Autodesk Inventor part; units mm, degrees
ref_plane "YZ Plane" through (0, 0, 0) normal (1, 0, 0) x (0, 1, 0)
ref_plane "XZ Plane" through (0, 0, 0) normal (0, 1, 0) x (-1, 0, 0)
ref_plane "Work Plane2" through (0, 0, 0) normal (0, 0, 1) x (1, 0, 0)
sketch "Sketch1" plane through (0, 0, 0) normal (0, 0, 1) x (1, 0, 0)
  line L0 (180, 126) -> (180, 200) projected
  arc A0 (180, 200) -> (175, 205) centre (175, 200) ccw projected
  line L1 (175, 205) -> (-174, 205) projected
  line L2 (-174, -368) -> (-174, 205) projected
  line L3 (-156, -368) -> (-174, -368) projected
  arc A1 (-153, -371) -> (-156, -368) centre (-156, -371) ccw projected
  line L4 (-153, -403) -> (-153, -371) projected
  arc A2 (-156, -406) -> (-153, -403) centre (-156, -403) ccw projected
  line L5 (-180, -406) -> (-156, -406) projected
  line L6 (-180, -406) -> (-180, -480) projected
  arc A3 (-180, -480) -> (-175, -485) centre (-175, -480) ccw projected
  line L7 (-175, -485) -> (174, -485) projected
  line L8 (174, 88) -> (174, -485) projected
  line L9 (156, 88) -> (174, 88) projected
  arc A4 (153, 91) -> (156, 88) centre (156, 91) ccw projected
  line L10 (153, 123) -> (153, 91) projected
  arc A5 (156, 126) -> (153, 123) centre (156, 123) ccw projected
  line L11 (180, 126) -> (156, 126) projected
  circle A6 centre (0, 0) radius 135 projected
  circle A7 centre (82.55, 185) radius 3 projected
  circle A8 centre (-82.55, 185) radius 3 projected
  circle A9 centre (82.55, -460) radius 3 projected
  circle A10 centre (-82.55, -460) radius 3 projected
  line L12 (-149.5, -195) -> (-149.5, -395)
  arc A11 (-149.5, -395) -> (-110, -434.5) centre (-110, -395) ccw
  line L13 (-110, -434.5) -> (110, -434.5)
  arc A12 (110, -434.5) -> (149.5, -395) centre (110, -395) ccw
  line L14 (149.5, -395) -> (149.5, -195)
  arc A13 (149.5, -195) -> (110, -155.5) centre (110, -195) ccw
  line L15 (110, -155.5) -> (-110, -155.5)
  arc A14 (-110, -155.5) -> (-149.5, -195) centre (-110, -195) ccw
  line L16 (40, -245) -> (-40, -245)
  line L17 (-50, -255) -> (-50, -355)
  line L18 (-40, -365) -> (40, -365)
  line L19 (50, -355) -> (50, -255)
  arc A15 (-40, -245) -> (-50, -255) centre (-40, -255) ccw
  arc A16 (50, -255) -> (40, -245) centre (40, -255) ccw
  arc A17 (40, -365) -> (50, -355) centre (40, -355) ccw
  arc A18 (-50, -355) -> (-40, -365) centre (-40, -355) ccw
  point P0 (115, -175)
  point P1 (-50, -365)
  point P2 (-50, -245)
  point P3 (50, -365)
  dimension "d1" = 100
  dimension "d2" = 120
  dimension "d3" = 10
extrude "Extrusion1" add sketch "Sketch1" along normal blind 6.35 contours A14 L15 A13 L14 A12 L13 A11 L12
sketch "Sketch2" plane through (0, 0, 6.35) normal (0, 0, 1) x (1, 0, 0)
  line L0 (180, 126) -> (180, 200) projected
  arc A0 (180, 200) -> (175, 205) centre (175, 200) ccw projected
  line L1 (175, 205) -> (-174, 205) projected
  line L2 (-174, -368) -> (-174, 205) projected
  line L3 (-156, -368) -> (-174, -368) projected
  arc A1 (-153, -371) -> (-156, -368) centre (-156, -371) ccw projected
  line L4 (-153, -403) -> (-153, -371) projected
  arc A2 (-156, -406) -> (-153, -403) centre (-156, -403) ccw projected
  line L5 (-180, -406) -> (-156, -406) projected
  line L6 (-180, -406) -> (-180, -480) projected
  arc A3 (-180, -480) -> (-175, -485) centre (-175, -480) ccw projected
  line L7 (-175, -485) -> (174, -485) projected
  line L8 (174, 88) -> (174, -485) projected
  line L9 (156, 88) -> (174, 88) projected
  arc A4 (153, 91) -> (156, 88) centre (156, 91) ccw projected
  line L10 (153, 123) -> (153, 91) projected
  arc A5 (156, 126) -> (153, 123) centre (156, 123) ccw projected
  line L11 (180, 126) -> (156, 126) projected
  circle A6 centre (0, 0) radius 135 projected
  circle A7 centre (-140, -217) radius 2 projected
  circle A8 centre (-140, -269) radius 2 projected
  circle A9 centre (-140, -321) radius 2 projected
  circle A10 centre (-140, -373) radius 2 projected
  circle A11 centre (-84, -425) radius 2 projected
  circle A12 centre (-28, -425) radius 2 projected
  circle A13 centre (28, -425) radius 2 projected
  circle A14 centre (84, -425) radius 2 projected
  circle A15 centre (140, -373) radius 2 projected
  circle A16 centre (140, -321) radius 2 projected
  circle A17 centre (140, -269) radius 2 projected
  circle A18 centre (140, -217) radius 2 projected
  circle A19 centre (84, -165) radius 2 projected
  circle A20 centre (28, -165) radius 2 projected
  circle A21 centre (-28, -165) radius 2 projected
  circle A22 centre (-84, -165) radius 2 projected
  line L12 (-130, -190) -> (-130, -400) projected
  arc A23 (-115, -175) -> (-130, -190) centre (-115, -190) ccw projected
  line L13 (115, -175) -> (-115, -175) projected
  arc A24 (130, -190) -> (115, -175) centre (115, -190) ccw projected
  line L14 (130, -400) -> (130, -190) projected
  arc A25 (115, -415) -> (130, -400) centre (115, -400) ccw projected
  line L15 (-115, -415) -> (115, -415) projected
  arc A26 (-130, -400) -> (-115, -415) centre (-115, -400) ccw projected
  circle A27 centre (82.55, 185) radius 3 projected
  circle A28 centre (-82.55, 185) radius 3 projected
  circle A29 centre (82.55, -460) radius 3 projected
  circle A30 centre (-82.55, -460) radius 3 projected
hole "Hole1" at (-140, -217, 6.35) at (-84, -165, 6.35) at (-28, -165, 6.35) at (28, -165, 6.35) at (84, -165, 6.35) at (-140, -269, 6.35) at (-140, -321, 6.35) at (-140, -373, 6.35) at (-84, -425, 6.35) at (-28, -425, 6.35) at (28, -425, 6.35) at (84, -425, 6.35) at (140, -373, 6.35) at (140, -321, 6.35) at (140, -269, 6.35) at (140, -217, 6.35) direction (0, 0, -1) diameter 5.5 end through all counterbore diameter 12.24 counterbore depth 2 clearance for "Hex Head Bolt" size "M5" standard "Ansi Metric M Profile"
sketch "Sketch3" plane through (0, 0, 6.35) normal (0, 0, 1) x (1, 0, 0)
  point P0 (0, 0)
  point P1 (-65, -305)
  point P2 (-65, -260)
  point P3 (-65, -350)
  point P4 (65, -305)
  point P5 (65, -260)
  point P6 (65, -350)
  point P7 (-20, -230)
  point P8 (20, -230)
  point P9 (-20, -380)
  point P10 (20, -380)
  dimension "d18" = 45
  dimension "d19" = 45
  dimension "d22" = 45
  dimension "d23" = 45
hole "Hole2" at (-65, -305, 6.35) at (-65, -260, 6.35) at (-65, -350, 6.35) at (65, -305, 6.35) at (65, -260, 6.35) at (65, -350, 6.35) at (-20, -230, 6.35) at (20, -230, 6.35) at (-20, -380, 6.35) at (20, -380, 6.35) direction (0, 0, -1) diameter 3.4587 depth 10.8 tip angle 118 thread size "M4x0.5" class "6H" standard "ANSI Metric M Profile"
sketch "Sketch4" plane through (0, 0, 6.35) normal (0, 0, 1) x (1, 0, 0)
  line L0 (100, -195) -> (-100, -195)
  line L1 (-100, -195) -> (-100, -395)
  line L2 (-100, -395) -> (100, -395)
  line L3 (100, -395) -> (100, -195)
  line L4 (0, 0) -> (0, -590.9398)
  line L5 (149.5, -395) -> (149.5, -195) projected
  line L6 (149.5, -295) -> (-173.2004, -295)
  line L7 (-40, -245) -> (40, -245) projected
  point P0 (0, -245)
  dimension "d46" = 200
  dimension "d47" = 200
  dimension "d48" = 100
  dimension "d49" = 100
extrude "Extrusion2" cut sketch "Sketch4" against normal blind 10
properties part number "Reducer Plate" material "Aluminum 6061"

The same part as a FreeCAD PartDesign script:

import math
import FreeCAD as App
import Part
import Sketcher


def add_polygon(sketch, points):
    """Adds a closed chain of lines whose ends are joined by coincident constraints."""
    first, n = sketch.GeometryCount, len(points)
    for a, b in zip(points, points[1:] + points[:1]):
        sketch.addGeometry(Part.LineSegment(App.Vector(*a, 0), App.Vector(*b, 0)), False)
    for i in range(n):
        sketch.addConstraint(Sketcher.Constraint("Coincident", first + i, 2, first + (i + 1) % n, 1))

doc = App.newDocument("Part")
params = doc.addObject("Spreadsheet::Sheet", "Params")
for row, (alias, value) in enumerate([
    ("sketch1_radius", "10 mm"),
    ("sketch1_height", "100 mm"),
    ("sketch1_radius2", "39.5 mm"),
    ("sketch1_width", "220 mm"),
    ("sketch1_height2", "200 mm"),
    ("pad1_length", "6.35 mm"),
    ("sketch2_diameter", "5.5 mm"),
    ("hole_diameter", "5.5 mm"),
    ("hole_cbore_diameter", "12.24 mm"),
    ("hole_cbore_depth", "2 mm"),
    ("hole2_diameter", "3.4587 mm"),
    ("hole2_depth", "10.8 mm"),
    ("sketch4_width", "200 mm"),
    ("pocket1_length", "10 mm"),
], start=1):
    params.set(f"A{row}", alias)
    params.set(f"B{row}", "=" + value)
    params.setAlias(f"B{row}", alias)

body = doc.addObject("PartDesign::Body", "Body")

# Sketch on XY plane
sketch1 = doc.addObject("Sketcher::SketchObject", "Sketch")
body.addObject(sketch1)
sketch1.AttachmentSupport = (doc.XY_Plane, [""])
sketch1.MapMode = "FlatFace"
sketch1.addGeometry(Part.ArcOfCircle(Part.Circle(App.Vector(-110, -195, 0), App.Vector(0, 0, 1), 40), math.radians(90), math.radians(180)), False)
sketch1.addGeometry(Part.LineSegment(App.Vector(-150, -195, 0), App.Vector(-150, -395, 0)), False)
sketch1.addGeometry(Part.ArcOfCircle(Part.Circle(App.Vector(-110, -395, 0), App.Vector(0, 0, 1), 40), math.radians(180), math.radians(270)), False)
sketch1.addGeometry(Part.LineSegment(App.Vector(-110, -434, 0), App.Vector(110, -434, 0)), False)
sketch1.addGeometry(Part.ArcOfCircle(Part.Circle(App.Vector(110, -395, 0), App.Vector(0, 0, 1), 40), math.radians(-90), math.radians(0)), False)
sketch1.addGeometry(Part.LineSegment(App.Vector(150, -395, 0), App.Vector(150, -195, 0)), False)
sketch1.addGeometry(Part.ArcOfCircle(Part.Circle(App.Vector(110, -195, 0), App.Vector(0, 0, 1), 40), math.radians(0), math.radians(90)), False)
sketch1.addGeometry(Part.LineSegment(App.Vector(110, -156, 0), App.Vector(-110, -156, 0)), False)
sketch1.addGeometry(Part.LineSegment(App.Vector(-40, -245, 0), App.Vector(40, -245, 0)), False)
sketch1.addGeometry(Part.ArcOfCircle(Part.Circle(App.Vector(40, -255, 0), App.Vector(0, 0, 1), 10), math.radians(0), math.radians(90)), False)
sketch1.addGeometry(Part.LineSegment(App.Vector(50, -255, 0), App.Vector(50, -355, 0)), False)
sketch1.addGeometry(Part.ArcOfCircle(Part.Circle(App.Vector(40, -355, 0), App.Vector(0, 0, 1), 10), math.radians(-90), math.radians(0)), False)
sketch1.addGeometry(Part.LineSegment(App.Vector(40, -365, 0), App.Vector(-40, -365, 0)), False)
sketch1.addGeometry(Part.ArcOfCircle(Part.Circle(App.Vector(-40, -355, 0), App.Vector(0, 0, 1), 10), math.radians(180), math.radians(270)), False)
sketch1.addGeometry(Part.LineSegment(App.Vector(-50, -355, 0), App.Vector(-50, -255, 0)), False)
sketch1.addGeometry(Part.ArcOfCircle(Part.Circle(App.Vector(-40, -255, 0), App.Vector(0, 0, 1), 10), math.radians(90), math.radians(180)), False)
sketch1.addConstraint(Sketcher.Constraint("Tangent", 0, 2, 1, 1))
sketch1.addConstraint(Sketcher.Constraint("Tangent", 1, 2, 2, 1))
sketch1.addConstraint(Sketcher.Constraint("Tangent", 2, 2, 3, 1))
sketch1.addConstraint(Sketcher.Constraint("Tangent", 3, 2, 4, 1))
sketch1.addConstraint(Sketcher.Constraint("Tangent", 4, 2, 5, 1))
sketch1.addConstraint(Sketcher.Constraint("Tangent", 5, 2, 6, 1))
sketch1.addConstraint(Sketcher.Constraint("Tangent", 6, 2, 7, 1))
sketch1.addConstraint(Sketcher.Constraint("Tangent", 7, 2, 0, 1))
sketch1.addConstraint(Sketcher.Constraint("Tangent", 8, 2, 9, 2))
sketch1.addConstraint(Sketcher.Constraint("Tangent", 9, 1, 10, 1))
sketch1.addConstraint(Sketcher.Constraint("Tangent", 10, 2, 11, 2))
sketch1.addConstraint(Sketcher.Constraint("Tangent", 11, 1, 12, 1))
sketch1.addConstraint(Sketcher.Constraint("Tangent", 12, 2, 13, 2))
sketch1.addConstraint(Sketcher.Constraint("Tangent", 13, 1, 14, 1))
sketch1.addConstraint(Sketcher.Constraint("Tangent", 14, 2, 15, 2))
sketch1.addConstraint(Sketcher.Constraint("Tangent", 15, 1, 8, 1))
sketch1.addConstraint(Sketcher.Constraint("Vertical", 1))
sketch1.addConstraint(Sketcher.Constraint("Horizontal", 3))
sketch1.addConstraint(Sketcher.Constraint("Vertical", 5))
sketch1.addConstraint(Sketcher.Constraint("Horizontal", 7))
sketch1.addConstraint(Sketcher.Constraint("Horizontal", 8))
sketch1.addConstraint(Sketcher.Constraint("Vertical", 10))
sketch1.addConstraint(Sketcher.Constraint("Horizontal", 12))
sketch1.addConstraint(Sketcher.Constraint("Vertical", 14))
sketch1.addConstraint(Sketcher.Constraint("Equal", 0, 2))
sketch1.addConstraint(Sketcher.Constraint("Equal", 2, 4))
sketch1.addConstraint(Sketcher.Constraint("Equal", 4, 6))
sketch1.addConstraint(Sketcher.Constraint("Equal", 9, 11))
sketch1.addConstraint(Sketcher.Constraint("Equal", 11, 13))
sketch1.addConstraint(Sketcher.Constraint("Equal", 13, 15))
sketch1.addConstraint(Sketcher.Constraint("Radius", 9, 10.0))
sketch1.addConstraint(Sketcher.Constraint("DistanceY", 10, 2, 10, 1, 100.0))
sketch1.addConstraint(Sketcher.Constraint("DistanceX", 14, 2, 9, 1, 100.0))
sketch1.addConstraint(Sketcher.Constraint("Radius", 0, 39.5))
sketch1.addConstraint(Sketcher.Constraint("DistanceX", 3, 1, 3, 2, 220.0))
sketch1.addConstraint(Sketcher.Constraint("DistanceY", 1, 2, 1, 1, 200.0))
sketch1.addConstraint(Sketcher.Constraint("DistanceX", 0, 3, -1, 1, 110.0))
sketch1.addConstraint(Sketcher.Constraint("DistanceY", 0, 3, -1, 1, 195.0))
sketch1.addConstraint(Sketcher.Constraint("DistanceX", -1, 1, 9, 3, 40.0))
sketch1.addConstraint(Sketcher.Constraint("DistanceY", 9, 3, -1, 1, 255.0))
sketch1.setExpression("Constraints[30]", "Params.sketch1_radius")
sketch1.setExpression("Constraints[31]", "Params.sketch1_height")
sketch1.setExpression("Constraints[33]", "Params.sketch1_radius2")
sketch1.setExpression("Constraints[34]", "Params.sketch1_width")
sketch1.setExpression("Constraints[35]", "Params.sketch1_height2")
pad1 = doc.addObject("PartDesign::Pad", "Pad")
body.addObject(pad1)
pad1.Profile = sketch1
pad1.setExpression("Length", "Params.pad1_length")

# Sketch on XY plane
sketch2 = doc.addObject("Sketcher::SketchObject", "Sketch001")
body.addObject(sketch2)
sketch2.AttachmentSupport = (doc.XY_Plane, [""])
sketch2.MapMode = "FlatFace"
sketch2.AttachmentOffset = App.Placement(App.Vector(0, 0, 6.35), App.Rotation())
sketch2.addGeometry(Part.Circle(App.Vector(-140, -217, 0), App.Vector(0, 0, 1), 2.8), False)
sketch2.addGeometry(Part.Circle(App.Vector(-84, -165, 0), App.Vector(0, 0, 1), 2.8), False)
sketch2.addGeometry(Part.Circle(App.Vector(-28, -165, 0), App.Vector(0, 0, 1), 2.8), False)
sketch2.addGeometry(Part.Circle(App.Vector(28, -165, 0), App.Vector(0, 0, 1), 2.8), False)
sketch2.addGeometry(Part.Circle(App.Vector(84, -165, 0), App.Vector(0, 0, 1), 2.8), False)
sketch2.addGeometry(Part.Circle(App.Vector(-140, -269, 0), App.Vector(0, 0, 1), 2.8), False)
sketch2.addGeometry(Part.Circle(App.Vector(-140, -321, 0), App.Vector(0, 0, 1), 2.8), False)
sketch2.addGeometry(Part.Circle(App.Vector(-140, -373, 0), App.Vector(0, 0, 1), 2.8), False)
sketch2.addGeometry(Part.Circle(App.Vector(-84, -425, 0), App.Vector(0, 0, 1), 2.8), False)
sketch2.addGeometry(Part.Circle(App.Vector(-28, -425, 0), App.Vector(0, 0, 1), 2.8), False)
sketch2.addGeometry(Part.Circle(App.Vector(28, -425, 0), App.Vector(0, 0, 1), 2.8), False)
sketch2.addGeometry(Part.Circle(App.Vector(84, -425, 0), App.Vector(0, 0, 1), 2.8), False)
sketch2.addGeometry(Part.Circle(App.Vector(140, -373, 0), App.Vector(0, 0, 1), 2.8), False)
sketch2.addGeometry(Part.Circle(App.Vector(140, -321, 0), App.Vector(0, 0, 1), 2.8), False)
sketch2.addGeometry(Part.Circle(App.Vector(140, -269, 0), App.Vector(0, 0, 1), 2.8), False)
sketch2.addGeometry(Part.Circle(App.Vector(140, -217, 0), App.Vector(0, 0, 1), 2.8), False)
sketch2.addConstraint(Sketcher.Constraint("Equal", 0, 1))
sketch2.addConstraint(Sketcher.Constraint("Equal", 1, 2))
sketch2.addConstraint(Sketcher.Constraint("Equal", 2, 3))
sketch2.addConstraint(Sketcher.Constraint("Equal", 3, 4))
sketch2.addConstraint(Sketcher.Constraint("Equal", 4, 5))
sketch2.addConstraint(Sketcher.Constraint("Equal", 5, 6))
sketch2.addConstraint(Sketcher.Constraint("Equal", 6, 7))
sketch2.addConstraint(Sketcher.Constraint("Equal", 7, 8))
sketch2.addConstraint(Sketcher.Constraint("Equal", 8, 9))
sketch2.addConstraint(Sketcher.Constraint("Equal", 9, 10))
sketch2.addConstraint(Sketcher.Constraint("Equal", 10, 11))
sketch2.addConstraint(Sketcher.Constraint("Equal", 11, 12))
sketch2.addConstraint(Sketcher.Constraint("Equal", 12, 13))
sketch2.addConstraint(Sketcher.Constraint("Equal", 13, 14))
sketch2.addConstraint(Sketcher.Constraint("Equal", 14, 15))
sketch2.addConstraint(Sketcher.Constraint("Symmetric", 2, 3, 3, 3, -2))
sketch2.addConstraint(Sketcher.Constraint("Symmetric", 1, 3, 4, 3, -2))
sketch2.addConstraint(Sketcher.Constraint("Symmetric", 9, 3, 10, 3, -2))
sketch2.addConstraint(Sketcher.Constraint("Symmetric", 8, 3, 11, 3, -2))
sketch2.addConstraint(Sketcher.Constraint("Symmetric", 7, 3, 12, 3, -2))
sketch2.addConstraint(Sketcher.Constraint("Symmetric", 6, 3, 13, 3, -2))
sketch2.addConstraint(Sketcher.Constraint("Symmetric", 5, 3, 14, 3, -2))
sketch2.addConstraint(Sketcher.Constraint("Symmetric", 0, 3, 15, 3, -2))
sketch2.addConstraint(Sketcher.Constraint("Horizontal", 1, 3, 2, 3))
sketch2.addConstraint(Sketcher.Constraint("Horizontal", 8, 3, 9, 3))
sketch2.addConstraint(Sketcher.Constraint("Vertical", 0, 3, 5, 3))
sketch2.addConstraint(Sketcher.Constraint("Vertical", 5, 3, 6, 3))
sketch2.addConstraint(Sketcher.Constraint("Vertical", 6, 3, 7, 3))
sketch2.addConstraint(Sketcher.Constraint("Vertical", 1, 3, 8, 3))
sketch2.addConstraint(Sketcher.Constraint("Vertical", 2, 3, 9, 3))
sketch2.addConstraint(Sketcher.Constraint("Diameter", 0, 5.5))
sketch2.addConstraint(Sketcher.Constraint("DistanceX", 0, 3, -1, 1, 140.0))
sketch2.addConstraint(Sketcher.Constraint("DistanceY", 0, 3, -1, 1, 217.0))
sketch2.addConstraint(Sketcher.Constraint("DistanceX", 1, 3, -1, 1, 84.0))
sketch2.addConstraint(Sketcher.Constraint("DistanceY", 1, 3, -1, 1, 165.0))
sketch2.addConstraint(Sketcher.Constraint("DistanceX", 2, 3, -1, 1, 28.0))
sketch2.addConstraint(Sketcher.Constraint("DistanceY", 5, 3, -1, 1, 269.0))
sketch2.addConstraint(Sketcher.Constraint("DistanceY", 6, 3, -1, 1, 321.0))
sketch2.addConstraint(Sketcher.Constraint("DistanceY", 7, 3, -1, 1, 373.0))
sketch2.addConstraint(Sketcher.Constraint("DistanceY", 8, 3, -1, 1, 425.0))
sketch2.setExpression("Constraints[30]", "Params.sketch2_diameter")
doc.recompute()
hole = doc.addObject("PartDesign::Hole", "Hole")
body.addObject(hole)
hole.Profile = sketch2
hole.ThreadType = "None"
hole.setExpression("Diameter", "Params.hole_diameter")
hole.DepthType = "ThroughAll"
hole.HoleCutType = "Counterbore"
hole.setExpression("HoleCutDiameter", "Params.hole_cbore_diameter")
hole.setExpression("HoleCutDepth", "Params.hole_cbore_depth")

# Sketch on XY plane
sketch3 = doc.addObject("Sketcher::SketchObject", "Sketch002")
body.addObject(sketch3)
sketch3.AttachmentSupport = (doc.XY_Plane, [""])
sketch3.MapMode = "FlatFace"
sketch3.AttachmentOffset = App.Placement(App.Vector(0, 0, 6.35), App.Rotation())
sketch3.addGeometry(Part.Circle(App.Vector(-65, -305, 0), App.Vector(0, 0, 1), 1.7), False)
sketch3.addGeometry(Part.Circle(App.Vector(-65, -260, 0), App.Vector(0, 0, 1), 1.7), False)
sketch3.addGeometry(Part.Circle(App.Vector(-65, -350, 0), App.Vector(0, 0, 1), 1.7), False)
sketch3.addGeometry(Part.Circle(App.Vector(65, -305, 0), App.Vector(0, 0, 1), 1.7), False)
sketch3.addGeometry(Part.Circle(App.Vector(65, -260, 0), App.Vector(0, 0, 1), 1.7), False)
sketch3.addGeometry(Part.Circle(App.Vector(65, -350, 0), App.Vector(0, 0, 1), 1.7), False)
sketch3.addGeometry(Part.Circle(App.Vector(-20, -230, 0), App.Vector(0, 0, 1), 1.7), False)
sketch3.addGeometry(Part.Circle(App.Vector(20, -230, 0), App.Vector(0, 0, 1), 1.7), False)
sketch3.addGeometry(Part.Circle(App.Vector(-20, -380, 0), App.Vector(0, 0, 1), 1.7), False)
sketch3.addGeometry(Part.Circle(App.Vector(20, -380, 0), App.Vector(0, 0, 1), 1.7), False)
sketch3.addConstraint(Sketcher.Constraint("Equal", 0, 1))
sketch3.addConstraint(Sketcher.Constraint("Equal", 1, 2))
sketch3.addConstraint(Sketcher.Constraint("Equal", 2, 3))
sketch3.addConstraint(Sketcher.Constraint("Equal", 3, 4))
sketch3.addConstraint(Sketcher.Constraint("Equal", 4, 5))
sketch3.addConstraint(Sketcher.Constraint("Equal", 5, 6))
sketch3.addConstraint(Sketcher.Constraint("Equal", 6, 7))
sketch3.addConstraint(Sketcher.Constraint("Equal", 7, 8))
sketch3.addConstraint(Sketcher.Constraint("Equal", 8, 9))
sketch3.addConstraint(Sketcher.Constraint("Symmetric", 0, 3, 3, 3, -2))
sketch3.addConstraint(Sketcher.Constraint("Symmetric", 1, 3, 4, 3, -2))
sketch3.addConstraint(Sketcher.Constraint("Symmetric", 2, 3, 5, 3, -2))
sketch3.addConstraint(Sketcher.Constraint("Symmetric", 6, 3, 7, 3, -2))
sketch3.addConstraint(Sketcher.Constraint("Symmetric", 8, 3, 9, 3, -2))
sketch3.addConstraint(Sketcher.Constraint("Vertical", 0, 3, 1, 3))
sketch3.addConstraint(Sketcher.Constraint("Vertical", 1, 3, 2, 3))
sketch3.addConstraint(Sketcher.Constraint("Vertical", 6, 3, 8, 3))
sketch3.addConstraint(Sketcher.Constraint("DistanceX", 0, 3, -1, 1, 65.0))
sketch3.addConstraint(Sketcher.Constraint("DistanceY", 0, 3, -1, 1, 305.0))
sketch3.addConstraint(Sketcher.Constraint("DistanceY", 1, 3, -1, 1, 260.0))
sketch3.addConstraint(Sketcher.Constraint("DistanceY", 2, 3, -1, 1, 350.0))
sketch3.addConstraint(Sketcher.Constraint("DistanceX", 6, 3, -1, 1, 20.0))
sketch3.addConstraint(Sketcher.Constraint("DistanceY", 6, 3, -1, 1, 230.0))
sketch3.addConstraint(Sketcher.Constraint("DistanceY", 8, 3, -1, 1, 380.0))
sketch3.addConstraint(Sketcher.Constraint("Diameter", 0, 3.4587))
doc.recompute()
hole2 = doc.addObject("PartDesign::Hole", "Hole001")
body.addObject(hole2)
hole2.Profile = sketch3
hole2.ThreadType = "None"
hole2.setExpression("Diameter", "Params.hole2_diameter")
hole2.DepthType = "Dimension"
hole2.setExpression("Depth", "Params.hole2_depth")
hole2.DrillPoint = "Angled"
hole2.DrillPointAngle = 118

# Sketch on XY plane
sketch4 = doc.addObject("Sketcher::SketchObject", "Sketch003")
body.addObject(sketch4)
sketch4.AttachmentSupport = (doc.XY_Plane, [""])
sketch4.MapMode = "FlatFace"
sketch4.AttachmentOffset = App.Placement(App.Vector(0, 0, 6.35), App.Rotation())
add_polygon(sketch4, [(100, -195), (-100, -195), (-100, -395), (100, -395)])  # lines 0-3
sketch4.addConstraint(Sketcher.Constraint("Horizontal", 0))
sketch4.addConstraint(Sketcher.Constraint("Vertical", 1))
sketch4.addConstraint(Sketcher.Constraint("Horizontal", 2))
sketch4.addConstraint(Sketcher.Constraint("Vertical", 3))
sketch4.addConstraint(Sketcher.Constraint("Equal", 2, 1))
sketch4.addConstraint(Sketcher.Constraint("DistanceX", 0, 2, 0, 1, 200.0))
sketch4.addConstraint(Sketcher.Constraint("DistanceX", 0, 2, -1, 1, 100.0))
sketch4.addConstraint(Sketcher.Constraint("DistanceY", 0, 2, -1, 1, 195.0))
sketch4.setExpression("Constraints[9]", "Params.sketch4_width")
pocket1 = doc.addObject("PartDesign::Pocket", "Pocket")
body.addObject(pocket1)
pocket1.Profile = sketch4
pocket1.setExpression("Length", "Params.pocket1_length")

doc.recompute()
